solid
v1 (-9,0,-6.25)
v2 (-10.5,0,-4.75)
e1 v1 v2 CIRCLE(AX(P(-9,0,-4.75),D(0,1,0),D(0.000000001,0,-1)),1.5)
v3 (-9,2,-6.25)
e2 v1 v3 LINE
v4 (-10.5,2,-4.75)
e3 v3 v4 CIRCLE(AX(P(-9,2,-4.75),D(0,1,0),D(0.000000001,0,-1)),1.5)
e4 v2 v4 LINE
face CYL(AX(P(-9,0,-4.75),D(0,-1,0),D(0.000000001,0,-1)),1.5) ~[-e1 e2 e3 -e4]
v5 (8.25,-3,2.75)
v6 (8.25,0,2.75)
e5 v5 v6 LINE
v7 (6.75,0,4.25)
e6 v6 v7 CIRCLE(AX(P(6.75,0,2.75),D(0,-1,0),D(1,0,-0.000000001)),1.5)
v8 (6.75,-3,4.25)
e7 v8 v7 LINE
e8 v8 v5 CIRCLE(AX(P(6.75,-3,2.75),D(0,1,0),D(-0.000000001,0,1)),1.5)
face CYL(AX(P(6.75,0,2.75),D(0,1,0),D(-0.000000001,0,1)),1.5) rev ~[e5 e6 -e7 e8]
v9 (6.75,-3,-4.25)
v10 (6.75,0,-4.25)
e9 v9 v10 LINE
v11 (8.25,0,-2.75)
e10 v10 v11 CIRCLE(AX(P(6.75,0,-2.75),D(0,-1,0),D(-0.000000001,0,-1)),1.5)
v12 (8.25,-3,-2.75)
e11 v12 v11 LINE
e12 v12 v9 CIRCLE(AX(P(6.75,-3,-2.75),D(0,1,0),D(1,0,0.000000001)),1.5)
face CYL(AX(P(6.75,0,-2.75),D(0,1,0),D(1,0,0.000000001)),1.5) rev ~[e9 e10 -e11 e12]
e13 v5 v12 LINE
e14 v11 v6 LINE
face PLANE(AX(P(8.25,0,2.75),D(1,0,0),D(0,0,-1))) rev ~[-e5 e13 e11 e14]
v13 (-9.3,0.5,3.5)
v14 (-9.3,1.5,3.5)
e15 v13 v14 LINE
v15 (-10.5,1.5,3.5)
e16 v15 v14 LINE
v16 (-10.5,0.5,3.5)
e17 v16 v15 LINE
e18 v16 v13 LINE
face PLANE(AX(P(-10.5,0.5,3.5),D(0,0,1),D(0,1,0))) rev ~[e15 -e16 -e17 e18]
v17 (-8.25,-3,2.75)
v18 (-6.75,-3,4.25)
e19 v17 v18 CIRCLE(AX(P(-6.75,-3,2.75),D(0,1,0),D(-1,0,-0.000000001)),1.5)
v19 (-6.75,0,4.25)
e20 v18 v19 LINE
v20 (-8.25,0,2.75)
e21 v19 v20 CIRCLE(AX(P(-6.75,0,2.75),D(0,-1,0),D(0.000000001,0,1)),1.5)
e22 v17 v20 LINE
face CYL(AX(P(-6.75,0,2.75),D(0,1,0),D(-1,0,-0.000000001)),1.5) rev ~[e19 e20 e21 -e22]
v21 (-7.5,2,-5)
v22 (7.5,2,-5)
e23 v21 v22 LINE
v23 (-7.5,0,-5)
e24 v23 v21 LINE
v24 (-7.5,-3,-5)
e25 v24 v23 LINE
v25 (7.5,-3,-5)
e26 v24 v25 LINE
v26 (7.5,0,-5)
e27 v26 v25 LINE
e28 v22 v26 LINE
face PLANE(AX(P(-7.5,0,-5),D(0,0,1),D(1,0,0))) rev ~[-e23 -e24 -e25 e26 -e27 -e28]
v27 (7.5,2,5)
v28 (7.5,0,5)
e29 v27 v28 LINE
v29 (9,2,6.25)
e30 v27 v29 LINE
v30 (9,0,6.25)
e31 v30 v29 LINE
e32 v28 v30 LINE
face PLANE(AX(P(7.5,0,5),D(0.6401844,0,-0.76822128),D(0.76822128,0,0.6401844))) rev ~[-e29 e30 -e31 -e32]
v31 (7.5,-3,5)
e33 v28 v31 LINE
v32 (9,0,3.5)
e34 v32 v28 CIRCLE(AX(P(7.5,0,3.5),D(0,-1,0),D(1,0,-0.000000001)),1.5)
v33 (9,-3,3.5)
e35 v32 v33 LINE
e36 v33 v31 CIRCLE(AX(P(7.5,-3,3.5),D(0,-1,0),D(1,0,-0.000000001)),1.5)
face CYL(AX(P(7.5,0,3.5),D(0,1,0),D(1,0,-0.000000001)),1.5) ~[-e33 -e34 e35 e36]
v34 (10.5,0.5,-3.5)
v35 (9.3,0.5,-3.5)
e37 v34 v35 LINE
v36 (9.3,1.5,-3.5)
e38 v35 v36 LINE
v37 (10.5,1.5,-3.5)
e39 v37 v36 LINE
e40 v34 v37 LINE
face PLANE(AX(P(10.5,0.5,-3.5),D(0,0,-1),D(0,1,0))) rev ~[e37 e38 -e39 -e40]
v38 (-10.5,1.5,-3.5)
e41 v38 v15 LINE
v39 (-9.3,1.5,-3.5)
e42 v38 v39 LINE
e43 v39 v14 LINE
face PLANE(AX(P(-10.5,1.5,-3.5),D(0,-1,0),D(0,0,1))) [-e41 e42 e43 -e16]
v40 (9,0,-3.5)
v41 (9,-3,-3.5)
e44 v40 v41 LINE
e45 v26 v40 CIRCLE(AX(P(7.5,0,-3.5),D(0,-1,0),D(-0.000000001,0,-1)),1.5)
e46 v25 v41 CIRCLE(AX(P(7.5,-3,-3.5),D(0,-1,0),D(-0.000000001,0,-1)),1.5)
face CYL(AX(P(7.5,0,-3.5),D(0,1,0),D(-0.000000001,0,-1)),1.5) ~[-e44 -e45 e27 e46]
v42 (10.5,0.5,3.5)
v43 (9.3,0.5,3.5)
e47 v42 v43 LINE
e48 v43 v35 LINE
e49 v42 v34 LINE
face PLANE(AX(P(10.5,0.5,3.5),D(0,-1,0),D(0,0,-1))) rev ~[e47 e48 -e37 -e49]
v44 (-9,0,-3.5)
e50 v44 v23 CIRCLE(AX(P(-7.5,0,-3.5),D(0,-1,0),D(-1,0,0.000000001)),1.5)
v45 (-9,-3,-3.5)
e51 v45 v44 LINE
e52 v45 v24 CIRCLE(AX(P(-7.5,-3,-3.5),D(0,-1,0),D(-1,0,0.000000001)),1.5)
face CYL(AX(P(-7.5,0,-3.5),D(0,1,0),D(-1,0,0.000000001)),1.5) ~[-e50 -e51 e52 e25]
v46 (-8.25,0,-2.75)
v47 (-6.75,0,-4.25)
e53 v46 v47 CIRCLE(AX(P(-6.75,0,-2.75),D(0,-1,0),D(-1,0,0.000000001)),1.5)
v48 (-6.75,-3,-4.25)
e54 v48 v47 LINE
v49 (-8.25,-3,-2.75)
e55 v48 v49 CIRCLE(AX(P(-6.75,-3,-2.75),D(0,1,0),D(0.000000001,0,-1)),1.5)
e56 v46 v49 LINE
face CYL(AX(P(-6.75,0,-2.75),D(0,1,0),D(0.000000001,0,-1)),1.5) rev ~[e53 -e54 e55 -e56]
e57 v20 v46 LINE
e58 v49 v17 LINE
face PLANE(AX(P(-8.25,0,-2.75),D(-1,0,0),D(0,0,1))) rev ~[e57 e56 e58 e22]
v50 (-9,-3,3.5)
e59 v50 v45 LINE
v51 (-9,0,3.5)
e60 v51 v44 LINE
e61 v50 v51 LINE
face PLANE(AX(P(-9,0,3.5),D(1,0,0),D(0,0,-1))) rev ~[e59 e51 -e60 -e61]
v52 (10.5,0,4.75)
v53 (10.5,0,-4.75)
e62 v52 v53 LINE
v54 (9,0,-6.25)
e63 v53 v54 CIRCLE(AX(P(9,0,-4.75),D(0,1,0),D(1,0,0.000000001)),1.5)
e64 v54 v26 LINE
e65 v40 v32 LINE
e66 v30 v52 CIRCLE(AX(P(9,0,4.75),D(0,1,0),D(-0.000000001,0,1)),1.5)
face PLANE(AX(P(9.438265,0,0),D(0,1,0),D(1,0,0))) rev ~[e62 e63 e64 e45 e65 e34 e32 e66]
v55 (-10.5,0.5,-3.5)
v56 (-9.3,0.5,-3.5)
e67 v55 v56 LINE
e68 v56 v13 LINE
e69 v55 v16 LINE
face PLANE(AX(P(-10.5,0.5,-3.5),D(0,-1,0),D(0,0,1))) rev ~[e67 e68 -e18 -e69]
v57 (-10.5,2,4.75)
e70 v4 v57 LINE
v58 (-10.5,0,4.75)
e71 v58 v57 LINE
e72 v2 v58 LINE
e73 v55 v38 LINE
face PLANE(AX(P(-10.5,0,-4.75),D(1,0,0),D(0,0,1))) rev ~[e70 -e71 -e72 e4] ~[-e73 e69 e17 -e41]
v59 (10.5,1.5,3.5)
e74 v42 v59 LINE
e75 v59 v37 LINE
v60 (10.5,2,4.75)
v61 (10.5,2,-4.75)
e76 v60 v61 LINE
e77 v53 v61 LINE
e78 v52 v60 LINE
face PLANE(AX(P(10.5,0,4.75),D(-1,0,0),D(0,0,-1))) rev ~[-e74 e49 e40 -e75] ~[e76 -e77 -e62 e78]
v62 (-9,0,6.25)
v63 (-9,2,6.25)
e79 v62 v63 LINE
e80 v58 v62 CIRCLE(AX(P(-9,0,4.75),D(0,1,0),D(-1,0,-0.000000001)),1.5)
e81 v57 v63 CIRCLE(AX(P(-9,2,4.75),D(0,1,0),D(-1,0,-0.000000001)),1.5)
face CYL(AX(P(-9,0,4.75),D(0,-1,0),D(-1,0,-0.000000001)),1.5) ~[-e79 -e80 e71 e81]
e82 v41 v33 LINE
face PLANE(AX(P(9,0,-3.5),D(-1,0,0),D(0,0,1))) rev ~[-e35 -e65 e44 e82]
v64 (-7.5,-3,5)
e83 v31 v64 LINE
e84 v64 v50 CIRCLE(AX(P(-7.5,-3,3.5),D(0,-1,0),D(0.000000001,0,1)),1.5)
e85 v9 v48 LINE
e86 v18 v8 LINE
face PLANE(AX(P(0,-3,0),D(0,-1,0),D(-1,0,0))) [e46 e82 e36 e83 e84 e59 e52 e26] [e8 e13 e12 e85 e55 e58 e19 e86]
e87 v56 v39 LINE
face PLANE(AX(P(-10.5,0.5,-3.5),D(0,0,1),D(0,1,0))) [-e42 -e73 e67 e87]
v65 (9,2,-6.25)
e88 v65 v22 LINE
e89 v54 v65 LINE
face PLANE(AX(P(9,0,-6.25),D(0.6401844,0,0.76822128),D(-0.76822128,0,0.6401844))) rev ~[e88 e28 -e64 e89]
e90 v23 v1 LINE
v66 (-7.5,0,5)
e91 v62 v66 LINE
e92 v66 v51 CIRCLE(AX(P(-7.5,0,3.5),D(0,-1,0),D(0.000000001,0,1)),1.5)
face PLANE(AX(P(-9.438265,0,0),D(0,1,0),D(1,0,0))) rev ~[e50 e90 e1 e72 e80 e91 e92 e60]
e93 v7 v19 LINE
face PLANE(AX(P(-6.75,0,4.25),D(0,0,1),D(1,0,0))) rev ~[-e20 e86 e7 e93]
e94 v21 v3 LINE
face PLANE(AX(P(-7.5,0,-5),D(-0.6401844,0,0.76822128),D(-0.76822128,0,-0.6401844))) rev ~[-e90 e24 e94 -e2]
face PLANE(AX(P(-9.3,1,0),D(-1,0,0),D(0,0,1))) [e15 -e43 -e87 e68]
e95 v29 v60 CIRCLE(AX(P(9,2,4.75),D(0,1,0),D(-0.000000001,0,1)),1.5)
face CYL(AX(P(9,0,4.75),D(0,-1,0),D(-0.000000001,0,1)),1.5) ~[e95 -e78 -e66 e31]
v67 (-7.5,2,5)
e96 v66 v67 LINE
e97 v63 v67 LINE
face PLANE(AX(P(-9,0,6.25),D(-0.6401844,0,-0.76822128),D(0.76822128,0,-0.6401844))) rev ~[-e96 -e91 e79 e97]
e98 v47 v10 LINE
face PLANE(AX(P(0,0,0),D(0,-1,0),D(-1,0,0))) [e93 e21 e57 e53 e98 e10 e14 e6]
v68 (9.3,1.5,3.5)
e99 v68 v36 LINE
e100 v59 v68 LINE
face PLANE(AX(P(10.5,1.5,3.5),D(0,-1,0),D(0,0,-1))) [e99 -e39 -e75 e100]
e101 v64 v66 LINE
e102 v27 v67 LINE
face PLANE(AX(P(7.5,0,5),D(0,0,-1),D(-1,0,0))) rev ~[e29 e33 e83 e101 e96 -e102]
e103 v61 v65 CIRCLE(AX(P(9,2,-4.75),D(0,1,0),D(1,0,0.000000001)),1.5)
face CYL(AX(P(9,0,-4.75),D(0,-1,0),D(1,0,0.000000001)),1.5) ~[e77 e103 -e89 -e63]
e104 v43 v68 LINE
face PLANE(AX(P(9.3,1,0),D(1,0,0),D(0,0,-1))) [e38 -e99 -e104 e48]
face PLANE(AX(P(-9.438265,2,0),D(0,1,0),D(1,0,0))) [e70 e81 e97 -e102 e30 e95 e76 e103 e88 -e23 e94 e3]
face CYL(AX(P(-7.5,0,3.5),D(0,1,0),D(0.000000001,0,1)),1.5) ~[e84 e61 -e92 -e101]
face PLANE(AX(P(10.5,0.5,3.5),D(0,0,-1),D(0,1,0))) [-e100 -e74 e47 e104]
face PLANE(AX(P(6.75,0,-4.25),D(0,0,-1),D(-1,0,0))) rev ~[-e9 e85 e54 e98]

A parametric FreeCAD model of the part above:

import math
import FreeCAD as App
import Part
import Sketcher
Q = App.Units.Quantity


def add_polygon(sketch, points):
    """Adds a closed chain of lines whose ends are joined by coincident constraints."""
    first, n = sketch.GeometryCount, len(points)
    for a, b in zip(points, points[1:] + points[:1]):
        sketch.addGeometry(Part.LineSegment(App.Vector(*a, 0), App.Vector(*b, 0)), False)
    for i in range(n):
        sketch.addConstraint(Sketcher.Constraint("Coincident", first + i, 2, first + (i + 1) % n, 1))

doc = App.newDocument("Part")
body = doc.addObject("PartDesign::Body", "Body")

sketch1 = doc.addObject("Sketcher::SketchObject", "Sketch")
body.addObject(sketch1)
sketch1.AttachmentSupport = (doc.XZ_Plane, [""])
sketch1.MapMode = "FlatFace"
sketch1.addGeometry([
    Part.LineSegment(App.Vector(7.5, -5, 0), App.Vector(-7.5, -5, 0)),
    Part.ArcOfCircle(Part.Circle(App.Vector(-7.5, -3.5, 0), App.Vector(0, 0, 1), 1.5), math.radians(180), math.radians(270)),
    Part.LineSegment(App.Vector(-9, -3.5, 0), App.Vector(-9, 3.5, 0)),
    Part.ArcOfCircle(Part.Circle(App.Vector(-7.5, 3.5, 0), App.Vector(0, 0, 1), 1.5), math.radians(90), math.radians(180)),
    Part.LineSegment(App.Vector(-7.5, 5, 0), App.Vector(7.5, 5, 0)),
    Part.ArcOfCircle(Part.Circle(App.Vector(7.5, 3.5, 0), App.Vector(0, 0, 1), 1.5), math.radians(0), math.radians(90)),
    Part.LineSegment(App.Vector(9, 3.5, 0), App.Vector(9, -3.5, 0)),
    Part.ArcOfCircle(Part.Circle(App.Vector(7.5, -3.5, 0), App.Vector(0, 0, 1), 1.5), math.radians(-90), math.radians(0)),
    Part.ArcOfCircle(Part.Circle(App.Vector(-6.75, -2.75, 0), App.Vector(0, 0, 1), 1.5), math.radians(180), math.radians(270)),
    Part.LineSegment(App.Vector(-6.75, -4.25, 0), App.Vector(6.75, -4.25, 0)),
    Part.ArcOfCircle(Part.Circle(App.Vector(6.75, -2.75, 0), App.Vector(0, 0, 1), 1.5), math.radians(-90), math.radians(0)),
    Part.LineSegment(App.Vector(8.25, -2.75, 0), App.Vector(8.25, 2.75, 0)),
    Part.ArcOfCircle(Part.Circle(App.Vector(6.75, 2.75, 0), App.Vector(0, 0, 1), 1.5), math.radians(0), math.radians(90)),
    Part.LineSegment(App.Vector(6.75, 4.25, 0), App.Vector(-6.75, 4.25, 0)),
    Part.ArcOfCircle(Part.Circle(App.Vector(-6.75, 2.75, 0), App.Vector(0, 0, 1), 1.5), math.radians(90), math.radians(180)),
    Part.LineSegment(App.Vector(-8.25, 2.75, 0), App.Vector(-8.25, -2.75, 0)),
], False)
sketch1.addConstraint([
    Sketcher.Constraint("Tangent", 0, 2, 1, 2),
    Sketcher.Constraint("Tangent", 1, 1, 2, 1),
    Sketcher.Constraint("Tangent", 2, 2, 3, 2),
    Sketcher.Constraint("Tangent", 3, 1, 4, 1),
    Sketcher.Constraint("Tangent", 4, 2, 5, 2),
    Sketcher.Constraint("Tangent", 5, 1, 6, 1),
    Sketcher.Constraint("Tangent", 6, 2, 7, 2),
    Sketcher.Constraint("Tangent", 7, 1, 0, 1),
    Sketcher.Constraint("Tangent", 8, 2, 9, 1),
    Sketcher.Constraint("Tangent", 9, 2, 10, 1),
    Sketcher.Constraint("Tangent", 10, 2, 11, 1),
    Sketcher.Constraint("Tangent", 11, 2, 12, 1),
    Sketcher.Constraint("Tangent", 12, 2, 13, 1),
    Sketcher.Constraint("Tangent", 13, 2, 14, 1),
    Sketcher.Constraint("Tangent", 14, 2, 15, 1),
    Sketcher.Constraint("Tangent", 15, 2, 8, 1),
    Sketcher.Constraint("Horizontal", 0),
    Sketcher.Constraint("Vertical", 2),
    Sketcher.Constraint("Horizontal", 4),
    Sketcher.Constraint("Vertical", 6),
    Sketcher.Constraint("Horizontal", 9),
    Sketcher.Constraint("Vertical", 11),
    Sketcher.Constraint("Horizontal", 13),
    Sketcher.Constraint("Vertical", 15),
    Sketcher.Constraint("Equal", 1, 3),
    Sketcher.Constraint("Equal", 3, 5),
    Sketcher.Constraint("Equal", 5, 7),
    Sketcher.Constraint("Equal", 7, 8),
    Sketcher.Constraint("Equal", 8, 10),
    Sketcher.Constraint("Equal", 10, 12),
    Sketcher.Constraint("Equal", 12, 14),
    Sketcher.Constraint("Symmetric", 1, 3, 5, 3, -1, 1),
    Sketcher.Constraint("Symmetric", 8, 3, 12, 3, -1, 1),
    Sketcher.Constraint("Radius", 1, Q("1.5 mm")),
    Sketcher.Constraint("DistanceX", 0, 2, 0, 1, Q("15 mm")),
    Sketcher.Constraint("DistanceY", 2, 1, 2, 2, Q("7 mm")),
    Sketcher.Constraint("DistanceX", 9, 1, 9, 2, Q("13.5 mm")),
    Sketcher.Constraint("DistanceY", 11, 1, 11, 2, Q("5.5 mm")),
])
pad1 = doc.addObject("PartDesign::Pad", "Pad")
body.addObject(pad1)
pad1.Profile = sketch1
pad1.Type = "TwoLengths"
pad1.Length = 2
pad1.Length2 = 3
pad1.Reversed = True

sketch2 = doc.addObject("Sketcher::SketchObject", "Sketch001")
body.addObject(sketch2)
sketch2.AttachmentSupport = (doc.XZ_Plane, [""])
sketch2.MapMode = "FlatFace"
sketch2.addGeometry([
    Part.ArcOfCircle(Part.Circle(App.Vector(-6.75, -2.75, 0), App.Vector(0, 0, 1), 1.5), math.radians(180), math.radians(270)),
    Part.LineSegment(App.Vector(-8.25, -2.75, 0), App.Vector(-8.25, 2.75, 0)),
    Part.ArcOfCircle(Part.Circle(App.Vector(-6.75, 2.75, 0), App.Vector(0, 0, 1), 1.5), math.radians(90), math.radians(180)),
    Part.LineSegment(App.Vector(-6.75, 4.25, 0), App.Vector(6.75, 4.25, 0)),
    Part.ArcOfCircle(Part.Circle(App.Vector(6.75, 2.75, 0), App.Vector(0, 0, 1), 1.5), math.radians(0), math.radians(90)),
    Part.LineSegment(App.Vector(8.25, 2.75, 0), App.Vector(8.25, -2.75, 0)),
    Part.ArcOfCircle(Part.Circle(App.Vector(6.75, -2.75, 0), App.Vector(0, 0, 1), 1.5), math.radians(-90), math.radians(0)),
    Part.LineSegment(App.Vector(6.75, -4.25, 0), App.Vector(-6.75, -4.25, 0)),
], False)
sketch2.addConstraint([
    Sketcher.Constraint("Tangent", 0, 1, 1, 1),
    Sketcher.Constraint("Tangent", 1, 2, 2, 2),
    Sketcher.Constraint("Tangent", 2, 1, 3, 1),
    Sketcher.Constraint("Tangent", 3, 2, 4, 2),
    Sketcher.Constraint("Tangent", 4, 1, 5, 1),
    Sketcher.Constraint("Tangent", 5, 2, 6, 2),
    Sketcher.Constraint("Tangent", 6, 1, 7, 1),
    Sketcher.Constraint("Tangent", 7, 2, 0, 2),
    Sketcher.Constraint("Vertical", 1),
    Sketcher.Constraint("Horizontal", 3),
    Sketcher.Constraint("Vertical", 5),
    Sketcher.Constraint("Horizontal", 7),
    Sketcher.Constraint("Equal", 0, 2),
    Sketcher.Constraint("Equal", 2, 4),
    Sketcher.Constraint("Equal", 4, 6),
    Sketcher.Constraint("Symmetric", 0, 3, 4, 3, -1, 1),
    Sketcher.Constraint("Radius", 0, Q("1.5 mm")),
    Sketcher.Constraint("DistanceX", 3, 1, 3, 2, Q("13.5 mm")),
    Sketcher.Constraint("DistanceY", 1, 1, 1, 2, Q("5.5 mm")),
])
pad2 = doc.addObject("PartDesign::Pad", "Pad001")
body.addObject(pad2)
pad2.Profile = sketch2
pad2.Length = 2
pad2.Reversed = True

sketch3 = doc.addObject("Sketcher::SketchObject", "Sketch002")
body.addObject(sketch3)
sketch3.AttachmentSupport = (doc.XZ_Plane, [""])
sketch3.MapMode = "FlatFace"
sketch3.addGeometry([
    Part.LineSegment(App.Vector(-7.5, -5, 0), App.Vector(-9, -6.25, 0)),
    Part.ArcOfCircle(Part.Circle(App.Vector(-9, -4.75, 0), App.Vector(0, 0, 1), 1.5), math.radians(180), math.radians(270)),
    Part.LineSegment(App.Vector(-10.5, -4.75, 0), App.Vector(-10.5, 4.75, 0)),
    Part.ArcOfCircle(Part.Circle(App.Vector(-9, 4.75, 0), App.Vector(0, 0, 1), 1.5), math.radians(90), math.radians(180)),
    Part.LineSegment(App.Vector(-9, 6.25, 0), App.Vector(-7.5, 5, 0)),
    Part.ArcOfCircle(Part.Circle(App.Vector(-7.5, 3.5, 0), App.Vector(0, 0, 1), 1.5), math.radians(90), math.radians(180)),
    Part.LineSegment(App.Vector(-9, 3.5, 0), App.Vector(-9, -3.5, 0)),
    Part.ArcOfCircle(Part.Circle(App.Vector(-7.5, -3.5, 0), App.Vector(0, 0, 1), 1.5), math.radians(180), math.radians(270)),
    Part.LineSegment(App.Vector(9, -6.25, 0), App.Vector(7.5, -5, 0)),
    Part.ArcOfCircle(Part.Circle(App.Vector(7.5, -3.5, 0), App.Vector(0, 0, 1), 1.5), math.radians(-90), math.radians(0)),
    Part.LineSegment(App.Vector(9, -3.5, 0), App.Vector(9, 3.5, 0)),
    Part.ArcOfCircle(Part.Circle(App.Vector(7.5, 3.5, 0), App.Vector(0, 0, 1), 1.5), math.radians(0), math.radians(90)),
    Part.LineSegment(App.Vector(7.5, 5, 0), App.Vector(9, 6.25, 0)),
    Part.ArcOfCircle(Part.Circle(App.Vector(9, 4.75, 0), App.Vector(0, 0, 1), 1.5), math.radians(0), math.radians(90)),
    Part.LineSegment(App.Vector(10.5, 4.75, 0), App.Vector(10.5, -4.75, 0)),
    Part.ArcOfCircle(Part.Circle(App.Vector(9, -4.75, 0), App.Vector(0, 0, 1), 1.5), math.radians(-90), math.radians(0)),
], False)
sketch3.addConstraint([
    Sketcher.Constraint("Coincident", 0, 2, 1, 2),
    Sketcher.Constraint("Tangent", 1, 1, 2, 1),
    Sketcher.Constraint("Tangent", 2, 2, 3, 2),
    Sketcher.Constraint("Coincident", 3, 1, 4, 1),
    Sketcher.Constraint("Coincident", 4, 2, 5, 1),
    Sketcher.Constraint("Tangent", 5, 2, 6, 1),
    Sketcher.Constraint("Tangent", 6, 2, 7, 1),
    Sketcher.Constraint("Coincident", 7, 2, 0, 1),
    Sketcher.Constraint("Coincident", 8, 2, 9, 1),
    Sketcher.Constraint("Tangent", 9, 2, 10, 1),
    Sketcher.Constraint("Tangent", 10, 2, 11, 1),
    Sketcher.Constraint("Coincident", 11, 2, 12, 1),
    Sketcher.Constraint("Coincident", 12, 2, 13, 2),
    Sketcher.Constraint("Tangent", 13, 1, 14, 1),
    Sketcher.Constraint("Tangent", 14, 2, 15, 2),
    Sketcher.Constraint("Coincident", 15, 1, 8, 1),
    Sketcher.Constraint("Vertical", 2),
    Sketcher.Constraint("Vertical", 6),
    Sketcher.Constraint("Vertical", 10),
    Sketcher.Constraint("Vertical", 14),
    Sketcher.Constraint("Equal", 1, 3),
    Sketcher.Constraint("Equal", 3, 5),
    Sketcher.Constraint("Equal", 5, 7),
    Sketcher.Constraint("Equal", 7, 9),
    Sketcher.Constraint("Equal", 9, 11),
    Sketcher.Constraint("Equal", 11, 13),
    Sketcher.Constraint("Equal", 13, 15),
    Sketcher.Constraint("Symmetric", 5, 3, 9, 3, -1, 1),
    Sketcher.Constraint("Symmetric", 1, 3, 13, 3, -1, 1),
    Sketcher.Constraint("Symmetric", 7, 2, 11, 2, -1, 1),
    Sketcher.Constraint("Symmetric", 3, 1, 15, 1, -1, 1),
    Sketcher.Constraint("Symmetric", 7, 2, 8, 2, -2),
    Sketcher.Constraint("Symmetric", 3, 1, 12, 2, -2),
    Sketcher.Constraint("Parallel", 4, 8),
    Sketcher.Constraint("Parallel", 0, 12),
    Sketcher.Constraint("Vertical", 3, 3, 0, 2),
    Sketcher.Constraint("Vertical", 7, 3, 4, 2),
    Sketcher.Constraint("Vertical", 3, 1, 5, 2),
    Sketcher.Constraint("Radius", 1, Q("1.5 mm")),
    Sketcher.Constraint("DistanceY", 6, 2, 6, 1, Q("7 mm")),
    Sketcher.Constraint("DistanceY", 2, 1, 2, 2, Q("9.5 mm")),
    Sketcher.Constraint("DistanceX", 1, 3, -1, 1, Q("9 mm")),
])
pad3 = doc.addObject("PartDesign::Pad", "Pad002")
body.addObject(pad3)
pad3.Profile = sketch3
pad3.Length = 2
pad3.Reversed = True

sketch4 = doc.addObject("Sketcher::SketchObject", "Sketch003")
body.addObject(sketch4)
sketch4.AttachmentSupport = (doc.YZ_Plane, [""])
sketch4.MapMode = "FlatFace"
sketch4.AttachmentOffset = App.Placement(App.Vector(0, 0, -10.5), App.Rotation())
add_polygon(sketch4, [(1.5, -3.5), (0.5, -3.5), (0.5, 3.5), (1.5, 3.5)])
sketch4.addConstraint([
    Sketcher.Constraint("Horizontal", 0),
    Sketcher.Constraint("Vertical", 1),
    Sketcher.Constraint("Horizontal", 2),
    Sketcher.Constraint("Vertical", 3),
    Sketcher.Constraint("DistanceX", 0, 2, 0, 1, Q("1 mm")),
    Sketcher.Constraint("DistanceY", 1, 1, 1, 2, Q("7 mm")),
    Sketcher.Constraint("DistanceX", -1, 1, 0, 2, Q("0.5 mm")),
    Sketcher.Constraint("DistanceY", 0, 2, -1, 1, Q("3.5 mm")),
])
pocket1 = doc.addObject("PartDesign::Pocket", "Pocket")
body.addObject(pocket1)
pocket1.Profile = sketch4
pocket1.Length = 1.2
pocket1.Reversed = True

sketch5 = doc.addObject("Sketcher::SketchObject", "Sketch004")
body.addObject(sketch5)
sketch5.AttachmentSupport = (doc.YZ_Plane, [""])
sketch5.MapMode = "FlatFace"
sketch5.AttachmentOffset = App.Placement(App.Vector(0, 0, 10.5), App.Rotation())
add_polygon(sketch5, [(1.5, 3.5), (0.5, 3.5), (0.5, -3.5), (1.5, -3.5)])
sketch5.addConstraint([
    Sketcher.Constraint("Horizontal", 0),
    Sketcher.Constraint("Vertical", 1),
    Sketcher.Constraint("Horizontal", 2),
    Sketcher.Constraint("Vertical", 3),
    Sketcher.Constraint("DistanceX", 0, 2, 0, 1, Q("1 mm")),
    Sketcher.Constraint("DistanceY", 1, 2, 1, 1, Q("7 mm")),
    Sketcher.Constraint("DistanceX", -1, 1, 0, 2, Q("0.5 mm")),
    Sketcher.Constraint("DistanceY", -1, 1, 0, 2, Q("3.5 mm")),
])
pocket2 = doc.addObject("PartDesign::Pocket", "Pocket001")
body.addObject(pocket2)
pocket2.Profile = sketch5
pocket2.Length = 1.2

doc.recompute()
